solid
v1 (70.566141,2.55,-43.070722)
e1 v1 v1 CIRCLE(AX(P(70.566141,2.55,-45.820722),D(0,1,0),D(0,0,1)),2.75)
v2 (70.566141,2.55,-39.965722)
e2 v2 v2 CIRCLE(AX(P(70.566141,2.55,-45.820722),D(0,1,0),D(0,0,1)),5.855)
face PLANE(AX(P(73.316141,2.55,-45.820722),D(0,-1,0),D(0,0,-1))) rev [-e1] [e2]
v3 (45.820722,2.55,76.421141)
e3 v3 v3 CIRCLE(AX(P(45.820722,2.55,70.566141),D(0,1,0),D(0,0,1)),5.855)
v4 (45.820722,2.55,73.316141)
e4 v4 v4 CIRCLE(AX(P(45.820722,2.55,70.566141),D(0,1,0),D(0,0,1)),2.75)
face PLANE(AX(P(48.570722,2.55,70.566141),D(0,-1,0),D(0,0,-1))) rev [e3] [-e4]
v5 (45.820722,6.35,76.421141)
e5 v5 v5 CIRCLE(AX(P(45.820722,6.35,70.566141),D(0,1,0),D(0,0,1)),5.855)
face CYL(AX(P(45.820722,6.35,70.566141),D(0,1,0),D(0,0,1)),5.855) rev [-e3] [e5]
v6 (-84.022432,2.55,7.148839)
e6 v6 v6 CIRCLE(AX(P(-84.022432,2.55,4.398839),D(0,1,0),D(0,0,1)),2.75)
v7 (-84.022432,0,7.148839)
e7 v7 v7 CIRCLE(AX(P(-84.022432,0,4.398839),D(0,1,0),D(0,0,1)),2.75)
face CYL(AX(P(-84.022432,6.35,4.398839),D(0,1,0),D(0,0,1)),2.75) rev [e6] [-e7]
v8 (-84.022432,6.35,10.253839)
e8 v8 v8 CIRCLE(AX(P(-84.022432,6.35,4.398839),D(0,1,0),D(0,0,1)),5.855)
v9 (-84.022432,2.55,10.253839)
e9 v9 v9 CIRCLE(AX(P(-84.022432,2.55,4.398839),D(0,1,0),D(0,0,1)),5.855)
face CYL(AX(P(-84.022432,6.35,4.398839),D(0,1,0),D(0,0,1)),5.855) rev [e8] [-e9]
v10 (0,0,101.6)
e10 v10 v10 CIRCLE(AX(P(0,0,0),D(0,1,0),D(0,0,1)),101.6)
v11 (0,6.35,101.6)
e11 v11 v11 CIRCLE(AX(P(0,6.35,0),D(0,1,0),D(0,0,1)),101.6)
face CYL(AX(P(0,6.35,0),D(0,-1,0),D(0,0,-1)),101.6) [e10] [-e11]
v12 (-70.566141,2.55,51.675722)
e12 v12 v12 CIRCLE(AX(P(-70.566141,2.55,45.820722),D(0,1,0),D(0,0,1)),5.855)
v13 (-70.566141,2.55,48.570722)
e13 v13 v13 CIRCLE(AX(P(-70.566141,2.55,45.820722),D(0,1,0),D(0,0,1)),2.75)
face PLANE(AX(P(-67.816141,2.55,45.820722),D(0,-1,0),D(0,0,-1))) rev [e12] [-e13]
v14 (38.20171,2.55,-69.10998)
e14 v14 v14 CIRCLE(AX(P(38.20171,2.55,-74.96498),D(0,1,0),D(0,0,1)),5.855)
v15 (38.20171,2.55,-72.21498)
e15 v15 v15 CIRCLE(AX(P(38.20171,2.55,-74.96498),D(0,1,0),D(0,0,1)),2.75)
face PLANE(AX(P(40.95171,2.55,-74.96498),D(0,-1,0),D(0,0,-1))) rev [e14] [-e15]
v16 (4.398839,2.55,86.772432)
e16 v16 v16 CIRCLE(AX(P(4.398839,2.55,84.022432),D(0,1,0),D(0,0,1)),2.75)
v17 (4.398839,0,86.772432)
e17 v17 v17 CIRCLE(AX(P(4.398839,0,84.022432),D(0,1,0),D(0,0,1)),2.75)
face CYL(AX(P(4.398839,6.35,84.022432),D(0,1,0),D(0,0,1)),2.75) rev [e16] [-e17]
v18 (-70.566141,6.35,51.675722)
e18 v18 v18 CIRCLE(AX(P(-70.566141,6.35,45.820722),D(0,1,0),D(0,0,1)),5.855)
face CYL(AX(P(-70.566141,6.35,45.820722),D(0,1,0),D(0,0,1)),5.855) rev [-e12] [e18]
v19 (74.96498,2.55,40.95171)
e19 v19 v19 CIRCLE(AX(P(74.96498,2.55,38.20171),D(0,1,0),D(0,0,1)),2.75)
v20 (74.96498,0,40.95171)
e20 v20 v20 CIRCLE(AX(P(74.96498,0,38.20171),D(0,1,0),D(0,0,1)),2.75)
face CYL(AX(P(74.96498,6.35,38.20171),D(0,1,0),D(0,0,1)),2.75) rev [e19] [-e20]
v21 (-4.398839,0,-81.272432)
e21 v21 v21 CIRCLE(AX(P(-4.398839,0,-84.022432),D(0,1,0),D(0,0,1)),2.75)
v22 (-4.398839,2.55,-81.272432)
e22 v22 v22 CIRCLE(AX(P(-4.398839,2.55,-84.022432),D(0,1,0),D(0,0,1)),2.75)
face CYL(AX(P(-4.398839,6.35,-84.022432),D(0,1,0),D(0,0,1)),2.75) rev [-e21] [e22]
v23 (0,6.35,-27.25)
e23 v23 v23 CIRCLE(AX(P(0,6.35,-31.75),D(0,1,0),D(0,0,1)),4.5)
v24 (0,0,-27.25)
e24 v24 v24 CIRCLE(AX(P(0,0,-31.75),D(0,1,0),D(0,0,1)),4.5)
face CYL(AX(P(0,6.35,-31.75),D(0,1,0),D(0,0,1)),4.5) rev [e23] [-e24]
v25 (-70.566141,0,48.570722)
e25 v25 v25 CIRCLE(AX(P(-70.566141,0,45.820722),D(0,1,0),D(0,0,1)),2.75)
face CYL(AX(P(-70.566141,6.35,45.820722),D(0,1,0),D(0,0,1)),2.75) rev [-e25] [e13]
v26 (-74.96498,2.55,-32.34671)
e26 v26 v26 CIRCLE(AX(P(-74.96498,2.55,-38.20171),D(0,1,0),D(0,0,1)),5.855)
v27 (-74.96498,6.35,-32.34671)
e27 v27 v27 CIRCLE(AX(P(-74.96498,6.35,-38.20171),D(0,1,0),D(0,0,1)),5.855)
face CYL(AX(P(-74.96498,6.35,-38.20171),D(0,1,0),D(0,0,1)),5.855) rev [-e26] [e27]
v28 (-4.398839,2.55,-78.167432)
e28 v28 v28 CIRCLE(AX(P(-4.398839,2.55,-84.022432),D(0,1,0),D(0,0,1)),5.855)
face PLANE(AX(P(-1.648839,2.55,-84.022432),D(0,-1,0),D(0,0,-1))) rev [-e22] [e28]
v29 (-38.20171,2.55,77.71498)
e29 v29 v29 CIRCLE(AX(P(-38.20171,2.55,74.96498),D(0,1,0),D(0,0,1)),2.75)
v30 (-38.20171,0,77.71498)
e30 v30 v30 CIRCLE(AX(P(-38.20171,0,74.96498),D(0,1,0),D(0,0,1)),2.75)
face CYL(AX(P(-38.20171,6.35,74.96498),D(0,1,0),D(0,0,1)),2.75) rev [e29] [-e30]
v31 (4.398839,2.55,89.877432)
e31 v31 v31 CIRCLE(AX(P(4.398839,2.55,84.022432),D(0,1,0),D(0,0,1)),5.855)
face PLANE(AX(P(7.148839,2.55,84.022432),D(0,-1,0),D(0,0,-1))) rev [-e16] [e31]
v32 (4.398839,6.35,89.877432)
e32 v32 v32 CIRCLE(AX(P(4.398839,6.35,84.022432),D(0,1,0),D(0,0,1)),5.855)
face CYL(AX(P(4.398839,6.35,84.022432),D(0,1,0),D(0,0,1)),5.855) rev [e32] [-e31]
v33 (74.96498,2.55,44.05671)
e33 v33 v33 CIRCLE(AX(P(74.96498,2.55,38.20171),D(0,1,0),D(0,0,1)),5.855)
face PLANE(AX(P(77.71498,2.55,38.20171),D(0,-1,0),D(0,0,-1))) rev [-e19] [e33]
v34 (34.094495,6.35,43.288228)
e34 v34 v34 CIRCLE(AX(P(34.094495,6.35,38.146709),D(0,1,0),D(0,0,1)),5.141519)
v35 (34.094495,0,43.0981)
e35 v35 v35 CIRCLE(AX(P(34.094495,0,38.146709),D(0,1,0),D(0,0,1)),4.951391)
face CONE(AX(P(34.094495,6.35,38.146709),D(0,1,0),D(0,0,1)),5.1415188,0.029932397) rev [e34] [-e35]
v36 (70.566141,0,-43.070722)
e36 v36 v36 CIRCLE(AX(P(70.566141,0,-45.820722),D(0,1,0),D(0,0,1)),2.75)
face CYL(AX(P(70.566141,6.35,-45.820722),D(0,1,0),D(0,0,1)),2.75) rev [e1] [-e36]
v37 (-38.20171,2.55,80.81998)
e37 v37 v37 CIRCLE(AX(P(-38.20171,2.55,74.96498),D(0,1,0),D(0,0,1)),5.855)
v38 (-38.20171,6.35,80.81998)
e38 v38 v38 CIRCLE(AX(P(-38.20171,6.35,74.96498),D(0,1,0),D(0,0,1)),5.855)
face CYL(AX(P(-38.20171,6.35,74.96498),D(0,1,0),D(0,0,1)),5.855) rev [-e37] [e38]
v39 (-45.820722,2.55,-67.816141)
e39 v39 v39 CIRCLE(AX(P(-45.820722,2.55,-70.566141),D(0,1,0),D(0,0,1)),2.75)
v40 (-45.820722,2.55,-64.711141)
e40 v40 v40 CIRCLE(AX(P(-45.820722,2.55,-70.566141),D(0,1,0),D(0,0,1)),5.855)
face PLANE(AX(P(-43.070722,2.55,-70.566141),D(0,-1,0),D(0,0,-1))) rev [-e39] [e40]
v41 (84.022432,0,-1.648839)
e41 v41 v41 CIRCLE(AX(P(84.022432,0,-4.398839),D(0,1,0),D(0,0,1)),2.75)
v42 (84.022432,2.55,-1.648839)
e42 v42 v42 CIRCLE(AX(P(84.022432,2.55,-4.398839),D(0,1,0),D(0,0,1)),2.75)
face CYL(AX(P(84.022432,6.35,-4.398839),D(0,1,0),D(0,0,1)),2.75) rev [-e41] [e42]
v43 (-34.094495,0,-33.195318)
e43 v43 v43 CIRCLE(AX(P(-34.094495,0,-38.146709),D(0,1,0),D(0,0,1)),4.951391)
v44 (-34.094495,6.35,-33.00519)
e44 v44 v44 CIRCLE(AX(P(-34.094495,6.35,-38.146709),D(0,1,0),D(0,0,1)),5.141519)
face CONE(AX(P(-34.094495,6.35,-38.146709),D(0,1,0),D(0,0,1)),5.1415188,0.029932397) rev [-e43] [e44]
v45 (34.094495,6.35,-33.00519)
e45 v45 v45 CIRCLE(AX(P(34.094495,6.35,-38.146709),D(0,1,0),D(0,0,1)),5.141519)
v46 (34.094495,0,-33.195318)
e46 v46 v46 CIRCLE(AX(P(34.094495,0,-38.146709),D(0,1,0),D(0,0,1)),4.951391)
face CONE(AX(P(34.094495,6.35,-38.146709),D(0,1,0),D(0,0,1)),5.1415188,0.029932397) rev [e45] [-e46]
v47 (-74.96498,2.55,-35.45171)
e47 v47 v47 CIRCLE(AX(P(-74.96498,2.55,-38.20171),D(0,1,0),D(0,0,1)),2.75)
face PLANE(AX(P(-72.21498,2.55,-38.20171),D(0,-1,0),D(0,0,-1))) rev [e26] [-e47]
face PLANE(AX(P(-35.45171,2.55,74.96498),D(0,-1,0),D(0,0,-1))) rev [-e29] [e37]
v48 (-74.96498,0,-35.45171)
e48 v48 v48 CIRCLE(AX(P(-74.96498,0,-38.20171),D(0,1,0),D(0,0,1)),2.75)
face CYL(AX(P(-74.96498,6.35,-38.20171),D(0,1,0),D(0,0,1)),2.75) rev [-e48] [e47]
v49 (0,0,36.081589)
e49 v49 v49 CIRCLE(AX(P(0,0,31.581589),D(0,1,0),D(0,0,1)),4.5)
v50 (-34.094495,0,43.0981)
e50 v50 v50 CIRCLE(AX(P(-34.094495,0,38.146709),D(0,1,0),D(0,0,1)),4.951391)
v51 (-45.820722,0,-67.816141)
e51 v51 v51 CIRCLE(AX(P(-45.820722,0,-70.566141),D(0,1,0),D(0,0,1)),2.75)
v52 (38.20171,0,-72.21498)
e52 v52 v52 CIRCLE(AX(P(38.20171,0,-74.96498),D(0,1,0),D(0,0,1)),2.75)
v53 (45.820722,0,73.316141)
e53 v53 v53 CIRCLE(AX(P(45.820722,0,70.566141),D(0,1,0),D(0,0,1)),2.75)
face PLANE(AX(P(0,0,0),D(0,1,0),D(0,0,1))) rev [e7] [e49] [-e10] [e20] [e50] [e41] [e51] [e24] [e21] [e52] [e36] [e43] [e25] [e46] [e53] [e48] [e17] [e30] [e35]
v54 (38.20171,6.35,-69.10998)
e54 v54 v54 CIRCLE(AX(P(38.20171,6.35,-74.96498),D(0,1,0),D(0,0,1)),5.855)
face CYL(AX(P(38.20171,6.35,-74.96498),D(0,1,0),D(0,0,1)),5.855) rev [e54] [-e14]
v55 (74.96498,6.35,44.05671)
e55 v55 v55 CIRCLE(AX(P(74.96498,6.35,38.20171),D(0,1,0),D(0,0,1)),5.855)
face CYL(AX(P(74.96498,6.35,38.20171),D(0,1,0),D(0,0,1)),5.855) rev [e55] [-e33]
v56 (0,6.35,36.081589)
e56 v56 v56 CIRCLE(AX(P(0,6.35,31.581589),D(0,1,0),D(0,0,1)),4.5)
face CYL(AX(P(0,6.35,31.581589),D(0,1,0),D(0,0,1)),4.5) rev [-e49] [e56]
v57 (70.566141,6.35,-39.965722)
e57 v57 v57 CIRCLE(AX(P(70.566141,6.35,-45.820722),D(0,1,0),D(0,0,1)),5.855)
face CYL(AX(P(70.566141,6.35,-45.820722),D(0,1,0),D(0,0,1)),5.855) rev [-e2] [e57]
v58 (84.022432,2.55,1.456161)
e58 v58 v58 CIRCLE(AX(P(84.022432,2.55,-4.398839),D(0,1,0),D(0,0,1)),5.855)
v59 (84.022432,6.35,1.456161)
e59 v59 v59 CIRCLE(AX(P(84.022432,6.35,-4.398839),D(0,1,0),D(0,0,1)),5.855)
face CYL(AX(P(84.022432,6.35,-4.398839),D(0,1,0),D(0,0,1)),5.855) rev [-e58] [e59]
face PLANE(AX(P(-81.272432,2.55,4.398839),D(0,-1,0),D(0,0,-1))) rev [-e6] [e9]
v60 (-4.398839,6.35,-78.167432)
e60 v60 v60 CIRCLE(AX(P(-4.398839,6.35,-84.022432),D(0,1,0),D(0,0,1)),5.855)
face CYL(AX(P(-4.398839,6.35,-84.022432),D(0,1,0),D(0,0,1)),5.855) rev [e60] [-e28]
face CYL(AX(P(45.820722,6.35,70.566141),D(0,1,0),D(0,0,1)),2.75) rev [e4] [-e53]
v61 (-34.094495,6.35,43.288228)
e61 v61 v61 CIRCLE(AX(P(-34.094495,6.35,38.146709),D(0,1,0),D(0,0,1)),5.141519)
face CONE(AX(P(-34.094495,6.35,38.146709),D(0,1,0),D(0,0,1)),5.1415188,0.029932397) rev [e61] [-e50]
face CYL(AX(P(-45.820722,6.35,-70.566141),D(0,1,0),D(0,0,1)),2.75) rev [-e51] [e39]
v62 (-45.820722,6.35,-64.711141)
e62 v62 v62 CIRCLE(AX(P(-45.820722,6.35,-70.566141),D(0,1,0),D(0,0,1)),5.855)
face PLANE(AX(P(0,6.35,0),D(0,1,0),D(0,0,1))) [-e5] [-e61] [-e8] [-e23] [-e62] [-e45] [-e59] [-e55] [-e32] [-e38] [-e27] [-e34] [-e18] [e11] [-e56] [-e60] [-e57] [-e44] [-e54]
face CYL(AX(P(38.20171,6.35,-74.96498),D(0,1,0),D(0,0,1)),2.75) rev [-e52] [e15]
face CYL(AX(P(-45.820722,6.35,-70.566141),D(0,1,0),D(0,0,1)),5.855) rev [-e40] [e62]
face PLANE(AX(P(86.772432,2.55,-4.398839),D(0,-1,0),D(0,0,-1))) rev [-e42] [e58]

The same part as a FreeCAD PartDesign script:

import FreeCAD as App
import Part
import Sketcher

V = App.Vector
Q = App.Units.Quantity

doc = App.newDocument("Part")
body = doc.addObject("PartDesign::Body", "Body")

sketch1 = body.newObject("Sketcher::SketchObject", "Sketch")
sketch1.AttachmentSupport = (doc.getObject("XZ_Plane"), [""])
sketch1.MapMode = "FlatFace"
sketch1.addGeometry([
    Part.Circle(V(0, 0, 0), V(0, 0, 1), 101.6),
    Part.Circle(V(-74.96, -38.2, 0), V(0, 0, 1), 0.25),
], False)
sketch1.addConstraint([
    Sketcher.Constraint("Coincident", 0, 3, -1, 1),
    Sketcher.Constraint("Diameter", 0, Q("8 in")),
    Sketcher.Constraint("Diameter", 1, Q("0.02 in")),
    Sketcher.Constraint("DistanceX", 1, 3, -1, 1, Q("74.96498 mm")),
    Sketcher.Constraint("DistanceY", 1, 3, -1, 1, Q("38.20171 mm")),
])
pad1 = body.newObject("PartDesign::Pad", "Pad")
pad1.Profile = sketch1
pad1.Length = Q("0.25 in")
pad1.Reversed = True

sketch2 = body.newObject("Sketcher::SketchObject", "Sketch001")
sketch2.AttachmentSupport = (doc.getObject("XZ_Plane"), [""])
sketch2.MapMode = "FlatFace"
sketch2.AttachmentOffset = App.Placement(V(0, 0, -0.25 * 25.4), App.Rotation())
sketch2.addGeometry(Part.Circle(V(-75, -38.2, 0), V(0, 0, 1), 2.8), False)
sketch2.addConstraint([
    Sketcher.Constraint("Diameter", 0, Q("5.5 mm")),
    Sketcher.Constraint("DistanceX", 0, 3, -1, 1, Q("74.96498 mm")),
    Sketcher.Constraint("DistanceY", 0, 3, -1, 1, Q("38.20171 mm")),
])
doc.recompute()
hole = body.newObject("PartDesign::Hole", "Hole")
hole.Profile = sketch2
hole.ThreadType = "None"
hole.Diameter = 5.5
hole.DepthType = "ThroughAll"
hole.HoleCutType = "Counterbore"
hole.HoleCutDiameter = 11.71
hole.HoleCutDepth = 3.8
hole.Reversed = True
doc.recompute()

polarpattern = body.newObject("PartDesign::PolarPattern", "PolarPattern")
polarpattern.Originals = [hole]
polarpattern.Axis = (doc.getObject("Y_Axis"), [""])
polarpattern.Angle = 360
polarpattern.Occurrences = 12
body.Tip = polarpattern

sketch3 = body.newObject("Sketcher::SketchObject", "Sketch002")
sketch3.AttachmentSupport = (doc.getObject("YZ_Plane"), [""])
sketch3.MapMode = "FlatFace"
sketch3.AttachmentOffset = App.Placement(V(0, 0, -34.094495), App.Rotation())
sketch3.addGeometry([
    Part.LineSegment(V(0, -38.1, 0), V(6.3, -38.1, 0)),
    Part.LineSegment(V(6.3, -38.1, 0), V(6.3, -33, 0)),
    Part.LineSegment(V(6.3, -33, 0), V(-0.5, -33.2, 0)),
    Part.LineSegment(V(-0.5, -33.2, 0), V(-0.5, -33.9, 0)),
    Part.LineSegment(V(-0.5, -33.9, 0), V(0, -33.9, 0)),
    Part.LineSegment(V(0, -33.9, 0), V(0, -38.1, 0)),
], False)
sketch3.addGeometry(Part.LineSegment(V(6.3, -38.1, 0), V(-0.5, -38.1, 0)), True)
sketch3.addConstraint([
    Sketcher.Constraint("Coincident", 0, 2, 1, 1),
    Sketcher.Constraint("Coincident", 1, 2, 2, 1),
    Sketcher.Constraint("Coincident", 2, 2, 3, 1),
    Sketcher.Constraint("Coincident", 3, 2, 4, 1),
    Sketcher.Constraint("Coincident", 4, 2, 5, 1),
    Sketcher.Constraint("Coincident", 5, 2, 0, 1),
    Sketcher.Constraint("Horizontal", 0),
    Sketcher.Constraint("Vertical", 1),
    Sketcher.Constraint("Vertical", 3),
    Sketcher.Constraint("Horizontal", 4),
    Sketcher.Constraint("Vertical", 5),
    Sketcher.Constraint("Horizontal", 6),
    Sketcher.Constraint("Coincident", 6, 1, 0, 2),
    Sketcher.Constraint("PointOnObject", 4, 2, -2),
    Sketcher.Constraint("Vertical", 3, 2, 6, 2),
    Sketcher.Constraint("DistanceX", 0, 1, 0, 2, Q("0.25 in")),
    Sketcher.Constraint("DistanceX", 4, 1, 4, 2, Q("0.02 in")),
    Sketcher.Constraint("DistanceY", 5, 2, 5, 1, Q("0.166 in")),
    Sketcher.Constraint("DistanceY", 1, 1, 1, 2, Q("5.141519 mm")),
    Sketcher.Constraint("DistanceY", 3, 2, 3, 1, Q("0.719781 mm")),
    Sketcher.Constraint("DistanceY", 0, 2, -1, 1, Q("38.146709 mm")),
])
groove = body.newObject("PartDesign::Groove", "Groove")
groove.Profile = sketch3
groove.ReferenceAxis = (sketch3, ["Axis0"])
groove.Angle = 360
doc.recompute()

linearpattern = body.newObject("PartDesign::LinearPattern", "LinearPattern")
linearpattern.Originals = [groove]
linearpattern.Direction = (doc.getObject("X_Axis"), [""])
linearpattern.Mode = "offset"
linearpattern.Offset = 68.188989
linearpattern.Occurrences = 2
body.Tip = linearpattern
doc.recompute()

datumline = body.newObject("PartDesign::Line", "DatumLine")
datumline.Placement = App.Placement(V(0, 0, 0), App.Rotation(V(0, 0, 1), V(0.666395599, 0, 0.745598354)))
linearpattern2 = body.newObject("PartDesign::LinearPattern", "LinearPattern001")
linearpattern2.Originals = [groove]
linearpattern2.Direction = (datumline, [""])
linearpattern2.Mode = "offset"
linearpattern2.Offset = 102.325089
linearpattern2.Occurrences = 2
body.Tip = linearpattern2
doc.recompute()

linearpattern3 = body.newObject("PartDesign::LinearPattern", "LinearPattern002")
linearpattern3.Originals = [groove]
linearpattern3.Direction = (doc.getObject("Z_Axis"), [""])
linearpattern3.Mode = "offset"
linearpattern3.Offset = 76.293418
linearpattern3.Occurrences = 2
body.Tip = linearpattern3

sketch4 = body.newObject("Sketcher::SketchObject", "Sketch003")
sketch4.AttachmentSupport = (doc.getObject("XZ_Plane"), [""])
sketch4.MapMode = "FlatFace"
sketch4.AttachmentOffset = App.Placement(V(0, 0, -0.25 * 25.4), App.Rotation())
sketch4.addGeometry([
    Part.Circle(V(0, -31.8, 0), V(0, 0, 1), 4.5),
    Part.Circle(V(0, 31.6, 0), V(0, 0, 1), 4.5),
], False)
sketch4.addConstraint([
    Sketcher.Constraint("Equal", 0, 1),
    Sketcher.Constraint("PointOnObject", 0, 3, -2),
    Sketcher.Constraint("PointOnObject", 1, 3, -2),
    Sketcher.Constraint("Diameter", 0, Q("9 mm")),
    Sketcher.Constraint("DistanceY", 0, 3, -1, 1, Q("1.25 in")),
    Sketcher.Constraint("DistanceY", -1, 1, 1, 3, Q("31.581589 mm")),
])
doc.recompute()
hole2 = body.newObject("PartDesign::Hole", "Hole001")
hole2.Profile = sketch4
hole2.ThreadType = "None"
hole2.Diameter = 9
hole2.DepthType = "Dimension"
hole2.Depth = Q("0.99 in")
hole2.DrillPoint = "Angled"
hole2.DrillPointAngle = 118
hole2.Reversed = True

doc.recompute()
